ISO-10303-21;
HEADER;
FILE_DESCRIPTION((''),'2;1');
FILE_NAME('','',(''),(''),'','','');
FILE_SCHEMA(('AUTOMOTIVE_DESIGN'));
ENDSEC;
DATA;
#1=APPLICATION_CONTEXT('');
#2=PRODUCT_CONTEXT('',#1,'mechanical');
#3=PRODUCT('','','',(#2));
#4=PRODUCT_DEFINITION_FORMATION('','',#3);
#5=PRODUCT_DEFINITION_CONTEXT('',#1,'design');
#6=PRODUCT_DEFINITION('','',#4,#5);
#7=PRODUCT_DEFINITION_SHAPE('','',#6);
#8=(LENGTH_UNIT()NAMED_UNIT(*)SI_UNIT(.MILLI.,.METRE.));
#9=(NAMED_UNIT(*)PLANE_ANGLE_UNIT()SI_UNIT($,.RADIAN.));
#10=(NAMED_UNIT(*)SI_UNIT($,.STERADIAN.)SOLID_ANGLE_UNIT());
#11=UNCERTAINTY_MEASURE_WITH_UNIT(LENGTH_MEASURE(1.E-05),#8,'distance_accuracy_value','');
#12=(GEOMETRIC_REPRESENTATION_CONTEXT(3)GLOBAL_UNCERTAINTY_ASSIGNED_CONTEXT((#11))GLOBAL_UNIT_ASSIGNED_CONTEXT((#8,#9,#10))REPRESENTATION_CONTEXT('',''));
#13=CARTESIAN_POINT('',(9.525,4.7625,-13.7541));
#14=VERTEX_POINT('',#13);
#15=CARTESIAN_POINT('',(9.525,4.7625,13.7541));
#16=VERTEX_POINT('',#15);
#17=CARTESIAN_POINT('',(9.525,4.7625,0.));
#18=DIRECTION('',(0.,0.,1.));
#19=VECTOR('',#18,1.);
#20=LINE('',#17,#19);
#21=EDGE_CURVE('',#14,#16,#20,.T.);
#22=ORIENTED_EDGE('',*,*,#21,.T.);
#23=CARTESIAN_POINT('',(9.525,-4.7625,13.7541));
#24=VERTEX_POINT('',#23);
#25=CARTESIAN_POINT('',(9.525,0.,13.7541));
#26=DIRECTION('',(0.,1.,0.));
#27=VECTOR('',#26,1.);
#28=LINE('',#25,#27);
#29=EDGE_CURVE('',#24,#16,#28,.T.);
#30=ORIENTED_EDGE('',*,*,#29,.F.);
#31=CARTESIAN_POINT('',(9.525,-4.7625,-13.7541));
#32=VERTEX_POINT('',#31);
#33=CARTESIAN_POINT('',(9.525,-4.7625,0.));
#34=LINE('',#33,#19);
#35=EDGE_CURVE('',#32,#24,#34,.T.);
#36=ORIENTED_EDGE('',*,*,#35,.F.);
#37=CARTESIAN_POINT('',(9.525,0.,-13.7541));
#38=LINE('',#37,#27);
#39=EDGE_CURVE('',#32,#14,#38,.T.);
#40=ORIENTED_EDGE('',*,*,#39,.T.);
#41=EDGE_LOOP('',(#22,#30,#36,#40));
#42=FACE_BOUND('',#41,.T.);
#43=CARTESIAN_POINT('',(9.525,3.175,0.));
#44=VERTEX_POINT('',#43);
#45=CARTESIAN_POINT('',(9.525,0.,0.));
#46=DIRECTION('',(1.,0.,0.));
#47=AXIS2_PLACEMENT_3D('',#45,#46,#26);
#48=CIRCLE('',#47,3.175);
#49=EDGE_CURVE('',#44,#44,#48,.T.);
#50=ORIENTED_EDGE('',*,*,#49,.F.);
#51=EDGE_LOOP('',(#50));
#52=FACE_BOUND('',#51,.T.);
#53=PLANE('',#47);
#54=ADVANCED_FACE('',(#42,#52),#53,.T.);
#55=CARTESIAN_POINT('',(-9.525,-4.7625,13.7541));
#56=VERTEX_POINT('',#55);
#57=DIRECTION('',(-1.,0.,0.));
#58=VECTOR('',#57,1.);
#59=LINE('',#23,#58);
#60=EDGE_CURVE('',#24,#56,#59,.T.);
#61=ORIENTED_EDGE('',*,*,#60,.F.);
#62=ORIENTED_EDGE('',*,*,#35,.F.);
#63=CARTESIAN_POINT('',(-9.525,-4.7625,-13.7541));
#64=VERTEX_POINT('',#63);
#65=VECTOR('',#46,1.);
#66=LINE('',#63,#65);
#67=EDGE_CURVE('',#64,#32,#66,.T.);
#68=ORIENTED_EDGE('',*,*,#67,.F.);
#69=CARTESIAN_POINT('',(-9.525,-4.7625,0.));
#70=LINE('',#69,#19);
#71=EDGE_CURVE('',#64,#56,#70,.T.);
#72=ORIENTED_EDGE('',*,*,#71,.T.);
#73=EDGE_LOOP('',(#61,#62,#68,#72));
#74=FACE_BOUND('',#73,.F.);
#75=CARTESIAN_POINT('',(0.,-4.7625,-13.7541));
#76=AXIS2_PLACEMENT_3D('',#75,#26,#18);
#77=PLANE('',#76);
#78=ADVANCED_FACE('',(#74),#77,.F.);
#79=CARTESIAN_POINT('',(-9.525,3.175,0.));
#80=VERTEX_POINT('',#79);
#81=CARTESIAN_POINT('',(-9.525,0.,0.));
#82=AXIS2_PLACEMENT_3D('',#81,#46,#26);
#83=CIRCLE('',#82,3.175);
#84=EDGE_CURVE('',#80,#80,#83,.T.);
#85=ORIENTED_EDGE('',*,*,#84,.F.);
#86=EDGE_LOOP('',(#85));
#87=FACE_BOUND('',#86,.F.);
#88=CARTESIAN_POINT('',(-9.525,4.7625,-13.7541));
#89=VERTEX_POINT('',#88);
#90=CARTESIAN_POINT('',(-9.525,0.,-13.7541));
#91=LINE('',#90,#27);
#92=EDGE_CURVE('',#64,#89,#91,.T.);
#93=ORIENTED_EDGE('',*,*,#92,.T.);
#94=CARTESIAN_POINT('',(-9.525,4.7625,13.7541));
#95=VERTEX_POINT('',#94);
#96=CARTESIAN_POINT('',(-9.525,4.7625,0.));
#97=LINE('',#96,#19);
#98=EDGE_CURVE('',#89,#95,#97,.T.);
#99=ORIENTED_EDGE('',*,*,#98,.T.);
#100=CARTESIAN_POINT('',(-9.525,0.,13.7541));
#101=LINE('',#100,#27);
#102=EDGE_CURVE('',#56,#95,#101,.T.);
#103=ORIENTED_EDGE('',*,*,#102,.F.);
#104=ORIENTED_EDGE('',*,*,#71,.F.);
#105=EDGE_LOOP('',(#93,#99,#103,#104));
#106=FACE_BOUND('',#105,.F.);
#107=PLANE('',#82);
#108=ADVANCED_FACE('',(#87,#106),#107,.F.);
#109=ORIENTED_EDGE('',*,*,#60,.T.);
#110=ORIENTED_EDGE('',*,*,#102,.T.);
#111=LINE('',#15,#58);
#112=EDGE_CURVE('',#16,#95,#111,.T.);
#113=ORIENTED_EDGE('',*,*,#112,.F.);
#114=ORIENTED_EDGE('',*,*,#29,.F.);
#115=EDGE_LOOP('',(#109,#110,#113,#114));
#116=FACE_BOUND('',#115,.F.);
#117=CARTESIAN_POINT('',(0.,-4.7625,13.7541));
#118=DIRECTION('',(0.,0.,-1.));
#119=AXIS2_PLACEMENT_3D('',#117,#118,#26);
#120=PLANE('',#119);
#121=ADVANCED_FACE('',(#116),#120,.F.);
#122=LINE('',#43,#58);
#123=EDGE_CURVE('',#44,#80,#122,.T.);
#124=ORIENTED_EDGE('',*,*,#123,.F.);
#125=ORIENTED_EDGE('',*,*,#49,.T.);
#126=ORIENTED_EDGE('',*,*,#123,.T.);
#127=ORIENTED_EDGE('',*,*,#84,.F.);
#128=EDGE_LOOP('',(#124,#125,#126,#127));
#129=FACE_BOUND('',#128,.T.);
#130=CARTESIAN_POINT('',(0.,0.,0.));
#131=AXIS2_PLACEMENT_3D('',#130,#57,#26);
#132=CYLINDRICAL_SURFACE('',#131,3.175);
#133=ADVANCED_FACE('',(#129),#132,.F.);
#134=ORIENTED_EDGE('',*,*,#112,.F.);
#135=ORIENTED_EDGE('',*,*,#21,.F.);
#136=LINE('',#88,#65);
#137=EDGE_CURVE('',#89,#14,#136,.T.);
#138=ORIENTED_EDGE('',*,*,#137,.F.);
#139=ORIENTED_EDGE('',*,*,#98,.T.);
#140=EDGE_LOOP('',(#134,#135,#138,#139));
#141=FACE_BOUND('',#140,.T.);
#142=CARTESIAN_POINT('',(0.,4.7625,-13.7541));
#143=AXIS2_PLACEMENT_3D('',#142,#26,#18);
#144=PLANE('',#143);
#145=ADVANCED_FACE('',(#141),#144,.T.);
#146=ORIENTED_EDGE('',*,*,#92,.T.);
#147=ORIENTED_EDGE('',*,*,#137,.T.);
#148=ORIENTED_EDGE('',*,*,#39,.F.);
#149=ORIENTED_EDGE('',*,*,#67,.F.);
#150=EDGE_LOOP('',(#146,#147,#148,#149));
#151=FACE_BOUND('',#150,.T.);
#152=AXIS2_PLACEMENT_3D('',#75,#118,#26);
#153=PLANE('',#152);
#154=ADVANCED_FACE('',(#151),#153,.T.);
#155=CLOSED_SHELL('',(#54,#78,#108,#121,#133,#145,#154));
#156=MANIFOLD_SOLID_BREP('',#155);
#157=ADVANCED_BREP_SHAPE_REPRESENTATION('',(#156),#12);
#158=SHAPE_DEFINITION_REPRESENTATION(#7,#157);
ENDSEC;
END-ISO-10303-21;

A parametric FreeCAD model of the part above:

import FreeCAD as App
import Part
import Sketcher

V = App.Vector
Q = App.Units.Quantity

doc = App.newDocument("Part")
body = doc.addObject("PartDesign::Body", "Body")

sketch1 = body.newObject("Sketcher::SketchObject", "Sketch")
sketch1.AttachmentSupport = (doc.getObject("YZ_Plane"), [""])
sketch1.MapMode = "FlatFace"
sketch1.addGeometry([
    Part.LineSegment(V(-4.8, 13.8, 0), V(-4.8, -13.8, 0)),
    Part.LineSegment(V(-4.8, -13.8, 0), V(4.8, -13.8, 0)),
    Part.LineSegment(V(4.8, -13.8, 0), V(4.8, 13.8, 0)),
    Part.LineSegment(V(4.8, 13.8, 0), V(-4.8, 13.8, 0)),
    Part.Circle(V(0, 0, 0), V(0, 0, 1), 3.2),
], False)
sketch1.addConstraint([
    Sketcher.Constraint("Coincident", 0, 2, 1, 1),
    Sketcher.Constraint("Coincident", 1, 2, 2, 1),
    Sketcher.Constraint("Coincident", 2, 2, 3, 1),
    Sketcher.Constraint("Coincident", 3, 2, 0, 1),
    Sketcher.Constraint("Vertical", 0),
    Sketcher.Constraint("Horizontal", 1),
    Sketcher.Constraint("Vertical", 2),
    Sketcher.Constraint("Horizontal", 3),
    Sketcher.Constraint("Coincident", 4, 3, -1, 1),
    Sketcher.Constraint("Symmetric", 0, 2, 2, 2, -1, 1),
    Sketcher.Constraint("Diameter", 4, Q("0.25 in")),
    Sketcher.Constraint("DistanceX", 1, 1, 1, 2, Q("0.375 in")),
    Sketcher.Constraint("DistanceY", 0, 2, 0, 1, Q("1.083 in")),
])
pad1 = body.newObject("PartDesign::Pad", "Pad")
pad1.Profile = sketch1
pad1.Length = Q("0.75 in")
pad1.Midplane = True

doc.recompute()
